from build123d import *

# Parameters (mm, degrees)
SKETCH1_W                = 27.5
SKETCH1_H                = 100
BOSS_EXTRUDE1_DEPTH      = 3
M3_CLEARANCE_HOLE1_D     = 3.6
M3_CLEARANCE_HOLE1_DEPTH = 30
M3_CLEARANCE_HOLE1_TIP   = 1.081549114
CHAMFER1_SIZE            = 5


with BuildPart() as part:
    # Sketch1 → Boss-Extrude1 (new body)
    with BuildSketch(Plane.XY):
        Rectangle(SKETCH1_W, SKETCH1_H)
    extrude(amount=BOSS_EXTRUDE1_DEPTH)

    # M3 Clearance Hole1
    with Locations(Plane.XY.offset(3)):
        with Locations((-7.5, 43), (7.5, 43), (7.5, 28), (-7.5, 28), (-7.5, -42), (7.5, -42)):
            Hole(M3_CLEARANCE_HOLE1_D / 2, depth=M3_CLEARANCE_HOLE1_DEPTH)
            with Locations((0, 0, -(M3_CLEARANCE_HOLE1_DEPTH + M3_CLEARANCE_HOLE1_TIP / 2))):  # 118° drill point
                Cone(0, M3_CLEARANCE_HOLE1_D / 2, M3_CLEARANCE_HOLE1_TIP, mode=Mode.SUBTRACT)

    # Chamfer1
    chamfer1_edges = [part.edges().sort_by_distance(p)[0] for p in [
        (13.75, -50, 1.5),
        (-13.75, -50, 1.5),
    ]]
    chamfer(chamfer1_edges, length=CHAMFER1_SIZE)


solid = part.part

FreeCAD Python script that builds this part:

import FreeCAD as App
import Part
import Sketcher
Q = App.Units.Quantity


def edges_at(feature, points):
    """Names of the edges that pass closest to the given points."""
    edges = feature.Shape.Edges
    near = lambda p: min(range(len(edges)), key=lambda i: edges[i].distToShape(Part.Vertex(*p))[0])
    return sorted({f"Edge{near(p) + 1}" for p in points})

doc = App.newDocument("Part")
body = doc.addObject("PartDesign::Body", "Body")

# Sketch on XY plane
sketch1 = doc.addObject("Sketcher::SketchObject", "Sketch")
body.addObject(sketch1)
sketch1.AttachmentSupport = (doc.XY_Plane, [""])
sketch1.MapMode = "FlatFace"
sketch1.addGeometry(Part.LineSegment(App.Vector(-13.75, 50, 0), App.Vector(-13.75, -50, 0)), False)
sketch1.addGeometry(Part.LineSegment(App.Vector(-13.75, -50, 0), App.Vector(13.75, -50, 0)), False)
sketch1.addGeometry(Part.LineSegment(App.Vector(13.75, -50, 0), App.Vector(13.75, 50, 0)), False)
sketch1.addGeometry(Part.LineSegment(App.Vector(13.75, 50, 0), App.Vector(-13.75, 50, 0)), False)
sketch1.addConstraint(Sketcher.Constraint("Coincident", 0, 2, 1, 1))
sketch1.addConstraint(Sketcher.Constraint("Coincident", 1, 2, 2, 1))
sketch1.addConstraint(Sketcher.Constraint("Coincident", 2, 2, 3, 1))
sketch1.addConstraint(Sketcher.Constraint("Coincident", 3, 2, 0, 1))
sketch1.addConstraint(Sketcher.Constraint("Vertical", 0))
sketch1.addConstraint(Sketcher.Constraint("Horizontal", 1))
sketch1.addConstraint(Sketcher.Constraint("Vertical", 2))
sketch1.addConstraint(Sketcher.Constraint("Horizontal", 3))
sketch1.addConstraint(Sketcher.Constraint("Symmetric", 0, 2, 2, 2, -1, 1))
sketch1.addConstraint(Sketcher.Constraint("DistanceY", 0, 2, 0, 1, Q("100 mm")))
sketch1.addConstraint(Sketcher.Constraint("DistanceX", 1, 1, 1, 2, Q("27.5 mm")))
pad1 = doc.addObject("PartDesign::Pad", "Pad")
body.addObject(pad1)
pad1.Profile = sketch1
pad1.Length = 3

# Sketch on XY plane
sketch2 = doc.addObject("Sketcher::SketchObject", "Sketch001")
body.addObject(sketch2)
sketch2.AttachmentSupport = (doc.XY_Plane, [""])
sketch2.MapMode = "FlatFace"
sketch2.AttachmentOffset = App.Placement(App.Vector(0, 0, 3), App.Rotation())
sketch2.addGeometry(Part.Circle(App.Vector(-7.5, 43, 0), App.Vector(0, 0, 1), 1.8), False)
sketch2.addGeometry(Part.Circle(App.Vector(7.5, 43, 0), App.Vector(0, 0, 1), 1.8), False)
sketch2.addGeometry(Part.Circle(App.Vector(7.5, 28, 0), App.Vector(0, 0, 1), 1.8), False)
sketch2.addGeometry(Part.Circle(App.Vector(-7.5, 28, 0), App.Vector(0, 0, 1), 1.8), False)
sketch2.addGeometry(Part.Circle(App.Vector(-7.5, -42, 0), App.Vector(0, 0, 1), 1.8), False)
sketch2.addGeometry(Part.Circle(App.Vector(7.5, -42, 0), App.Vector(0, 0, 1), 1.8), False)
sketch2.addConstraint(Sketcher.Constraint("Equal", 0, 1))
sketch2.addConstraint(Sketcher.Constraint("Equal", 1, 2))
sketch2.addConstraint(Sketcher.Constraint("Equal", 2, 3))
sketch2.addConstraint(Sketcher.Constraint("Equal", 3, 4))
sketch2.addConstraint(Sketcher.Constraint("Equal", 4, 5))
sketch2.addConstraint(Sketcher.Constraint("Symmetric", 0, 3, 1, 3, -2))
sketch2.addConstraint(Sketcher.Constraint("Symmetric", 2, 3, 3, 3, -2))
sketch2.addConstraint(Sketcher.Constraint("Symmetric", 4, 3, 5, 3, -2))
sketch2.addConstraint(Sketcher.Constraint("Vertical", 1, 3, 2, 3))
sketch2.addConstraint(Sketcher.Constraint("Vertical", 3, 3, 4, 3))
sketch2.addConstraint(Sketcher.Constraint("Diameter", 0, Q("3.6 mm")))
sketch2.addConstraint(Sketcher.Constraint("DistanceY", -1, 1, 0, 3, Q("43 mm")))
sketch2.addConstraint(Sketcher.Constraint("DistanceY", -1, 1, 2, 3, Q("28 mm")))
sketch2.addConstraint(Sketcher.Constraint("DistanceY", 4, 3, -1, 1, Q("42 mm")))
sketch2.addConstraint(Sketcher.Constraint("DistanceX", 0, 3, 1, 3, Q("15 mm")))
doc.recompute()
hole = doc.addObject("PartDesign::Hole", "Hole")
body.addObject(hole)
hole.Profile = sketch2
hole.ThreadType = "None"
hole.Diameter = 3.6
hole.DepthType = "Dimension"
hole.Depth = 30
hole.DrillPoint = "Angled"
hole.DrillPointAngle = 118
doc.recompute()

chamfer = doc.addObject("PartDesign::Chamfer", "Chamfer")
body.addObject(chamfer)
chamfer.Base = (hole, edges_at(hole, [(13.75, -50, 1.5), (-13.75, -50, 1.5)]))
chamfer.Size = 5

doc.recompute()
